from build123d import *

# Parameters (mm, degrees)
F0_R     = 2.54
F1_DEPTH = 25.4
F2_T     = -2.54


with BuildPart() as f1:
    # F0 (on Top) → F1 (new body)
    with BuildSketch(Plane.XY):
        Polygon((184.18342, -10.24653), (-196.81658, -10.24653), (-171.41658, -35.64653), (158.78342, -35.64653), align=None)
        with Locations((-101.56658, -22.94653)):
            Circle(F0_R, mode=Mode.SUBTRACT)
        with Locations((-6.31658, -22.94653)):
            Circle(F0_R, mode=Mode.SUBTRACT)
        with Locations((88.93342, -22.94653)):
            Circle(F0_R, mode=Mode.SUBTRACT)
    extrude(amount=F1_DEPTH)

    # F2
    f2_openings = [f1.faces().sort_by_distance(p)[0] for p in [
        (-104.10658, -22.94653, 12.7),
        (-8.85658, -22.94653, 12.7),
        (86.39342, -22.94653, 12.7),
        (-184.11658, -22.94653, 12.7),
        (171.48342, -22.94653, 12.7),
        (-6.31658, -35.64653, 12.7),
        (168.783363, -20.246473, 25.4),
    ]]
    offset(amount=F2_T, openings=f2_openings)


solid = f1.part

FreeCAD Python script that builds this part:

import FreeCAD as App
import Part
import Sketcher
Q = App.Units.Quantity


def faces_at(feature, points):
    """Names of the faces that lie closest to the given points."""
    faces = feature.Shape.Faces
    near = lambda p: min(range(len(faces)), key=lambda i: faces[i].distToShape(Part.Vertex(*p))[0])
    return sorted({f"Face{near(p) + 1}" for p in points})


def add_polygon(sketch, points):
    """Adds a closed chain of lines whose ends are joined by coincident constraints."""
    first, n = sketch.GeometryCount, len(points)
    for a, b in zip(points, points[1:] + points[:1]):
        sketch.addGeometry(Part.LineSegment(App.Vector(*a, 0), App.Vector(*b, 0)), False)
    for i in range(n):
        sketch.addConstraint(Sketcher.Constraint("Coincident", first + i, 2, first + (i + 1) % n, 1))

doc = App.newDocument("Part")
params = doc.addObject("Spreadsheet::Sheet", "Params")
for row, (alias, value) in enumerate([
    ("sketch1_diameter", "0.2 in"),
    ("sketch1_width", "15 in"),
    ("sketch1_width2", "13 in"),
    ("pad1_length", "1 in"),
    ("thickness_wall", "0.1 in"),
], start=1):
    params.set(f"A{row}", alias)
    params.set(f"B{row}", "=" + value)
    params.setAlias(f"B{row}", alias)

body = doc.addObject("PartDesign::Body", "Body")

# Sketch on XY plane
sketch1 = body.newObject("Sketcher::SketchObject", "Sketch")
sketch1.AttachmentSupport = (doc.getObject("XY_Plane"), [""])
sketch1.MapMode = "FlatFace"
add_polygon(sketch1, [(184.2, -10.2), (-196.8, -10.2), (-171.4, -35.6), (158.8, -35.6)])  # lines 0-3
sketch1.addGeometry(Part.Circle(App.Vector(-101.6, -22.9, 0), App.Vector(0, 0, 1), 2.5), False)  # 4
sketch1.addGeometry(Part.Circle(App.Vector(-6.3, -22.9, 0), App.Vector(0, 0, 1), 2.5), False)  # 5
sketch1.addGeometry(Part.Circle(App.Vector(88.9, -22.9, 0), App.Vector(0, 0, 1), 2.5), False)  # 6
sketch1.addConstraint([
    Sketcher.Constraint("Horizontal", 0),
    Sketcher.Constraint("Horizontal", 2),
    Sketcher.Constraint("Equal", 4, 5),
    Sketcher.Constraint("Equal", 5, 6),
    Sketcher.Constraint("Perpendicular", 1, 3),
    Sketcher.Constraint("Horizontal", 4, 3, 5, 3),
    Sketcher.Constraint("Horizontal", 5, 3, 6, 3),
    Sketcher.Constraint("Equal", 1, 3),
    Sketcher.Constraint("Diameter", 4, Q("0.2 in")),
    Sketcher.Constraint("DistanceX", 0, 2, 0, 1, Q("15 in")),
    Sketcher.Constraint("DistanceX", 2, 1, 2, 2, Q("13 in")),
    Sketcher.Constraint("DistanceX", 4, 3, 6, 3, Q("7.5 in")),
    Sketcher.Constraint("DistanceY", 4, 3, 0, 2, Q("0.5 in")),
    Sketcher.Constraint("DistanceX", 0, 2, 5, 3, Q("7.5 in")),
    Sketcher.Constraint("DistanceX", 4, 3, 5, 3, Q("3.75 in")),
    Sketcher.Constraint("DistanceX", 4, 3, -1, 1, Q("101.56658 mm")),
    Sketcher.Constraint("DistanceY", 4, 3, -1, 1, Q("22.94653 mm")),
])
sketch1.setExpression("Constraints[12]", "Params.sketch1_diameter")
sketch1.setExpression("Constraints[13]", "Params.sketch1_width")
sketch1.setExpression("Constraints[14]", "Params.sketch1_width2")
pad1 = body.newObject("PartDesign::Pad", "Pad")
pad1.Profile = sketch1
pad1.setExpression("Length", "Params.pad1_length")
doc.recompute()

thickness = body.newObject("PartDesign::Thickness", "Thickness")
thickness.Base = (pad1, faces_at(pad1, [
    (-104.107, -22.947, 12.7),
    (-8.857, -22.947, 12.7),
    (86.393, -22.947, 12.7),
    (-184.117, -22.947, 12.7),
    (171.483, -22.947, 12.7),
    (-6.317, -35.647, 12.7),
    (-82.517, -28.027, 25.4),
]))
thickness.setExpression("Value", "Params.thickness_wall")
thickness.Reversed = True
thickness.Join = "Arc"

doc.recompute()
